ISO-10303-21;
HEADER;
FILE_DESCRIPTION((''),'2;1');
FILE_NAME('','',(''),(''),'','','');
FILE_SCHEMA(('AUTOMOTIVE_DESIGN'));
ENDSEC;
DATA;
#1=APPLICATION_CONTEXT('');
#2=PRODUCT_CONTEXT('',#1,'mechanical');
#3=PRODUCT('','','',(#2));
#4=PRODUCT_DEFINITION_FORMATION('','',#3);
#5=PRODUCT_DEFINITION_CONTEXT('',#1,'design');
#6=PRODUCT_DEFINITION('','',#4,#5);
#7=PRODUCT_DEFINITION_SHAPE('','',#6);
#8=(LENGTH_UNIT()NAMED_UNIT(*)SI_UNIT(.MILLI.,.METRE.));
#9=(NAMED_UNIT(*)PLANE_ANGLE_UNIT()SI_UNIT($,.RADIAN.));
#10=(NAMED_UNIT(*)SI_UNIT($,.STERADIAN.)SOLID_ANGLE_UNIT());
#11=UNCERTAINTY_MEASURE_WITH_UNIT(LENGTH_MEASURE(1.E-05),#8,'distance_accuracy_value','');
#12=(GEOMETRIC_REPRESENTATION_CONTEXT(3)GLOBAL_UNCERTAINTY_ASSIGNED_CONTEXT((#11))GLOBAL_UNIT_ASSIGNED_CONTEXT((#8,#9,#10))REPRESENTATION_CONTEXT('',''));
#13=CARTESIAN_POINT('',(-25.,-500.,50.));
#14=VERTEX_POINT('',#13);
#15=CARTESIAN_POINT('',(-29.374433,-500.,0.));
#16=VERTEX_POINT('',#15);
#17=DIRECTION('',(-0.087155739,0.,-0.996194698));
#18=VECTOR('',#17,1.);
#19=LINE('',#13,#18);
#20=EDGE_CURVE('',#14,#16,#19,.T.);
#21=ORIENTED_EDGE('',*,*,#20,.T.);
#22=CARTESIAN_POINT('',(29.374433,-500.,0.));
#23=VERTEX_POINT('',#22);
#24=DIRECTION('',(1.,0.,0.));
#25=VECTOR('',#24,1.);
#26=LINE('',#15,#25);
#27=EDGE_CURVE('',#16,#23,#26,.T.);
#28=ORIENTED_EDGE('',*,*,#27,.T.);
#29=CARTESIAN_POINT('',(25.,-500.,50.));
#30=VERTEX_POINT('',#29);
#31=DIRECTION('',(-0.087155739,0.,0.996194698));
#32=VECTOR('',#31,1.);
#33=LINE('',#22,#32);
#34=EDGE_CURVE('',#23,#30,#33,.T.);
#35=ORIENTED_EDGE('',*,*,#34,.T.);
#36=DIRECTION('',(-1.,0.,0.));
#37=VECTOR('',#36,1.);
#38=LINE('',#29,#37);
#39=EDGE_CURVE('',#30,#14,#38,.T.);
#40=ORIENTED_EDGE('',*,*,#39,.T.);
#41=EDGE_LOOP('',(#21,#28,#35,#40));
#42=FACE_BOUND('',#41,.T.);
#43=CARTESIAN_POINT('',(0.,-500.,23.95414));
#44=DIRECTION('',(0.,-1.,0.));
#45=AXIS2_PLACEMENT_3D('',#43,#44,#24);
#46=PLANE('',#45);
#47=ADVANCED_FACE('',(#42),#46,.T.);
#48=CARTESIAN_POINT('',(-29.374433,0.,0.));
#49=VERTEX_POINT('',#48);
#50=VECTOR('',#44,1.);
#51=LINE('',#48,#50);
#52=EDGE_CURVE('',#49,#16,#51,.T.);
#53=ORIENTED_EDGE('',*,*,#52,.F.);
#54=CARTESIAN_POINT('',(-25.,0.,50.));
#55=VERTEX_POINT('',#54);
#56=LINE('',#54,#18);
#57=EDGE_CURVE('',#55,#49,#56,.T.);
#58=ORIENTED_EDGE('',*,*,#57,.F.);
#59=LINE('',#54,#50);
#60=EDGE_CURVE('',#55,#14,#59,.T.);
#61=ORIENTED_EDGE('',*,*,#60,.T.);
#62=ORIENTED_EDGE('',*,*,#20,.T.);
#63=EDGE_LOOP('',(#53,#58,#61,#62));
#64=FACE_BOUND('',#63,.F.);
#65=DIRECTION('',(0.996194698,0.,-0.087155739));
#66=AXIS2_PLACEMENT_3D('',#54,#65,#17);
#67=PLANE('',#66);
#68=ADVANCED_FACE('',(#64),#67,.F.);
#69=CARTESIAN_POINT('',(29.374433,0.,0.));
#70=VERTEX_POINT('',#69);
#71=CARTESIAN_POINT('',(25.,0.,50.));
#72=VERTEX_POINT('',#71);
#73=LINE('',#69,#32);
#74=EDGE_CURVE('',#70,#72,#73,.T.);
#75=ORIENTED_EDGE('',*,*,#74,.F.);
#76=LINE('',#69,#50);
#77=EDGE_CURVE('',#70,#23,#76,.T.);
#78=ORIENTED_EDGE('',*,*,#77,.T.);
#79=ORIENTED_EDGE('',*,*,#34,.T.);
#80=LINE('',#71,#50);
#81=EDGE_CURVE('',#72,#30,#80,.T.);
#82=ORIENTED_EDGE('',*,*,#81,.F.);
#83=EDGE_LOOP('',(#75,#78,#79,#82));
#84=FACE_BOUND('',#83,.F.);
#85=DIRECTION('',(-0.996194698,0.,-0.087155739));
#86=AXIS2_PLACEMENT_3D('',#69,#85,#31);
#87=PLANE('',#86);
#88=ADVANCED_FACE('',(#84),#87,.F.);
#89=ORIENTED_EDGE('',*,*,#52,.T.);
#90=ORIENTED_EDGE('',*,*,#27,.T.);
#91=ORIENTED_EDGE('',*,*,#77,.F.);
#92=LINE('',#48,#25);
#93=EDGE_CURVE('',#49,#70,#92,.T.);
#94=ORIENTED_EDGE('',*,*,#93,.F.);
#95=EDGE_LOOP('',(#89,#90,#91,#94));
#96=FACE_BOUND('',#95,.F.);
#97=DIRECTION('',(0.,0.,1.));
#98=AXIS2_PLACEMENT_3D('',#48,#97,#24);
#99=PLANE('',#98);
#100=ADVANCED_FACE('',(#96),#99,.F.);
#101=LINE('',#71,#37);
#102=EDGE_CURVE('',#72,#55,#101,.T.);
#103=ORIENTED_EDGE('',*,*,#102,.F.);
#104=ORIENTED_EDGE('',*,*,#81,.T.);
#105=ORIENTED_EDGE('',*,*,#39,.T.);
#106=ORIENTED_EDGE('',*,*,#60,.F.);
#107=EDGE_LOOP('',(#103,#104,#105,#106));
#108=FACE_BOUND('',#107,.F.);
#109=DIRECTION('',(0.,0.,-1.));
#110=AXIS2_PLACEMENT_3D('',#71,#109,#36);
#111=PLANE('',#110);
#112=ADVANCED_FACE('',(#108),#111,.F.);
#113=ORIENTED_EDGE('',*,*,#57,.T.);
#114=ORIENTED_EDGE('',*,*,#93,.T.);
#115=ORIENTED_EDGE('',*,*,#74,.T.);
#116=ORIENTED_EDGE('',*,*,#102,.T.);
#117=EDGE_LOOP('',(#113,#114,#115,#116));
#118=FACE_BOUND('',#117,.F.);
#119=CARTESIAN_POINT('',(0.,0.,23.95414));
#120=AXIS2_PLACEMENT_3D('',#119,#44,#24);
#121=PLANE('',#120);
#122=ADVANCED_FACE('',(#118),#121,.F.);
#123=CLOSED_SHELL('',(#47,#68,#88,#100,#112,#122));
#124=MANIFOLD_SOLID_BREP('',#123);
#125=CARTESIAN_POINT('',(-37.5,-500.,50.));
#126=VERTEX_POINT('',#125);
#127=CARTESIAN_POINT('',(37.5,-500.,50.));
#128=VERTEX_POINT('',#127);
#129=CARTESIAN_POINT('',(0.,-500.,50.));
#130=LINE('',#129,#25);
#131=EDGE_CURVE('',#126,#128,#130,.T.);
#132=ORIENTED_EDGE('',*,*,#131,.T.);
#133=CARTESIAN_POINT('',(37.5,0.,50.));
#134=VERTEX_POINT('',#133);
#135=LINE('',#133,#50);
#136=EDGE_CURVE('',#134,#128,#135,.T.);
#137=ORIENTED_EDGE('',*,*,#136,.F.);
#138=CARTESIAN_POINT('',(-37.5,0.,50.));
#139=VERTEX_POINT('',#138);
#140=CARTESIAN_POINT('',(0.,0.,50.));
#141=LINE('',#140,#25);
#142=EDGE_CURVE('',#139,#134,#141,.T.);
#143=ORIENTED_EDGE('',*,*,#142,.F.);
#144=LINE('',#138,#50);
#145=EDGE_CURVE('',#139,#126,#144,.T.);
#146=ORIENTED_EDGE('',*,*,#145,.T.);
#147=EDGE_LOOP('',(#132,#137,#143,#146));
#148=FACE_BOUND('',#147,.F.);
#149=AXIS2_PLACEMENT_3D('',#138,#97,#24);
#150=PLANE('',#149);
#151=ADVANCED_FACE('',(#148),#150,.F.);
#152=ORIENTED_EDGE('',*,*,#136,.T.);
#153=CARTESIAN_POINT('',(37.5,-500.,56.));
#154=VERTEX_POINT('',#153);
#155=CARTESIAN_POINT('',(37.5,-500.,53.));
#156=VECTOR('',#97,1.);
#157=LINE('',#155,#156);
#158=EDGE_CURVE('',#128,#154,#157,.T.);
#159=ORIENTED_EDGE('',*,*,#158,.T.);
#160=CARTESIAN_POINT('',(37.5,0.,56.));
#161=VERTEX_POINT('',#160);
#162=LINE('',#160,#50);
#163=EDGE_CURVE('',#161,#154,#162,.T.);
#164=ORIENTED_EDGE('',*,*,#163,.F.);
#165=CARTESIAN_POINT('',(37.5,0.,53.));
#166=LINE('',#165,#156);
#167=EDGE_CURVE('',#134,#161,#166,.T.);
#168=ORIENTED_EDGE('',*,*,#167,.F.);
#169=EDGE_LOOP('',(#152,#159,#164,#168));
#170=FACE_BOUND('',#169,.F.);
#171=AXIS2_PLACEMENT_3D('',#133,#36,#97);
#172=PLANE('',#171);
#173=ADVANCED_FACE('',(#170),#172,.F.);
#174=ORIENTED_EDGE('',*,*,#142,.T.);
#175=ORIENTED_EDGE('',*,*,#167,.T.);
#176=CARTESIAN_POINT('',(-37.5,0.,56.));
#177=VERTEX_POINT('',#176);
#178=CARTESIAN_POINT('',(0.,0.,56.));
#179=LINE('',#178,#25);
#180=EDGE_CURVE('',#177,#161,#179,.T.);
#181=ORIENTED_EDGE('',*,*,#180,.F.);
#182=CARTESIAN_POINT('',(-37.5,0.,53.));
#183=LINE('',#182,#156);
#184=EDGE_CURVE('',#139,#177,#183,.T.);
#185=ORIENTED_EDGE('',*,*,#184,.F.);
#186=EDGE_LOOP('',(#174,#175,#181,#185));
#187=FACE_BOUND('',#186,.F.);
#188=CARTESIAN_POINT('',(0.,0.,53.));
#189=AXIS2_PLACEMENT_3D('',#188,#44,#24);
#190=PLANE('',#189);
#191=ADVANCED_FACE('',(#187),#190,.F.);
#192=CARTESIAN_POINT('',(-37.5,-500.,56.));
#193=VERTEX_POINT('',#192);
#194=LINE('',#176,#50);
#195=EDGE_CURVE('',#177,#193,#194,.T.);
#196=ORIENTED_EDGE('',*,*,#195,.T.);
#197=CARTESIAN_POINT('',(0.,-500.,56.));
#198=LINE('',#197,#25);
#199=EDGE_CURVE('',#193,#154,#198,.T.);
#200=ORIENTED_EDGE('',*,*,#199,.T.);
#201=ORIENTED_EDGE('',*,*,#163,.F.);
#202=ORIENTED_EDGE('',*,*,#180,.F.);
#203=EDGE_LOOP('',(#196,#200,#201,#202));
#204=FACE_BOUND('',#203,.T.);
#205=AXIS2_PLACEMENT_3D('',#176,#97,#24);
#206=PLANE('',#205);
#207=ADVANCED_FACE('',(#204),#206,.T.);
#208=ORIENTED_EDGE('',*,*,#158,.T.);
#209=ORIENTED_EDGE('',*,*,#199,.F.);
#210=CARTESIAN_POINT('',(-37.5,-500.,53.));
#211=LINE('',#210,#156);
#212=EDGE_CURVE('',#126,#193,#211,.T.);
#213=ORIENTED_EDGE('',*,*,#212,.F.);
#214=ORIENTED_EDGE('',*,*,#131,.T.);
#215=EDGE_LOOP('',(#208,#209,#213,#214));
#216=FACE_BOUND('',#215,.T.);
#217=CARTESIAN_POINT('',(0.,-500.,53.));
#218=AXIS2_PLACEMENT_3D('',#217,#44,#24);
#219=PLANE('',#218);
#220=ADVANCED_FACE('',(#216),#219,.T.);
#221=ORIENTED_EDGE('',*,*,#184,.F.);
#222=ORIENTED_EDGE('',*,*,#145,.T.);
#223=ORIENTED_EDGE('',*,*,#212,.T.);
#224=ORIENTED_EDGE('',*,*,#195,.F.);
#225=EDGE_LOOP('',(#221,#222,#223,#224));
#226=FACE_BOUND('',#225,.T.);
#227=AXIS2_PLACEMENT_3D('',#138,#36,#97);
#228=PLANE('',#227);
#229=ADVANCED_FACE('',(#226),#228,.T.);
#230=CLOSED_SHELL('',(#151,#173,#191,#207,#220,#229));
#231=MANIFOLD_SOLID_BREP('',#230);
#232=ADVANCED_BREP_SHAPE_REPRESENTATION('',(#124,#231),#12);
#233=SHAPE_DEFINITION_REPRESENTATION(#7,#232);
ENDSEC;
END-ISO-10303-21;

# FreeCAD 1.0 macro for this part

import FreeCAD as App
import Part
import Sketcher
from FreeCAD import Vector
Q = App.Units.Quantity

doc = App.newDocument("Part")
body = doc.addObject("PartDesign::Body", "Body")

# Sketch on XZ plane
sketch1 = body.newObject("Sketcher::SketchObject", "Sketch")
sketch1.AttachmentSupport = (doc.getObject("XZ_Plane"), [""])
sketch1.MapMode = "FlatFace"
sketch1.addGeometry([
    Part.LineSegment(Vector(-25, 50, 0), Vector(-29, 0, 0)),
    Part.LineSegment(Vector(-29, 0, 0), Vector(29, 0, 0)),
    Part.LineSegment(Vector(29, 0, 0), Vector(25, 50, 0)),
    Part.LineSegment(Vector(25, 50, 0), Vector(-25, 50, 0)),
], False)
sketch1.addConstraint([
    Sketcher.Constraint("Coincident", 0, 2, 1, 1),
    Sketcher.Constraint("Coincident", 1, 2, 2, 1),
    Sketcher.Constraint("Coincident", 2, 2, 3, 1),
    Sketcher.Constraint("Coincident", 3, 2, 0, 1),
    Sketcher.Constraint("Horizontal", 1),
    Sketcher.Constraint("Horizontal", 3),
    Sketcher.Constraint("Symmetric", 0, 2, 1, 2, -1, 1),
    Sketcher.Constraint("Equal", 0, 2),
    Sketcher.Constraint("DistanceX", 3, 2, 3, 1, Q("50 mm")),
    Sketcher.Constraint("Angle", 0, Q("-95 deg")),
    Sketcher.Constraint("DistanceY", -1, 1, 2, 2, Q("50 mm")),
])
pad1 = body.newObject("PartDesign::Pad", "Pad")
pad1.Profile = sketch1
pad1.Length = 500
body2 = doc.addObject("PartDesign::Body", "Body001")

# Sketch on XZ plane
sketch2 = body2.newObject("Sketcher::SketchObject", "Sketch001")
sketch2.AttachmentSupport = (doc.getObject("XZ_Plane001"), [""])
sketch2.MapMode = "FlatFace"
sketch2.addGeometry([
    Part.LineSegment(Vector(-38, 56, 0), Vector(-38, 50, 0)),
    Part.LineSegment(Vector(-38, 50, 0), Vector(38, 50, 0)),
    Part.LineSegment(Vector(38, 50, 0), Vector(38, 56, 0)),
    Part.LineSegment(Vector(38, 56, 0), Vector(-38, 56, 0)),
], False)
sketch2.addConstraint([
    Sketcher.Constraint("Coincident", 0, 2, 1, 1),
    Sketcher.Constraint("Coincident", 1, 2, 2, 1),
    Sketcher.Constraint("Coincident", 2, 2, 3, 1),
    Sketcher.Constraint("Coincident", 3, 2, 0, 1),
    Sketcher.Constraint("Vertical", 0),
    Sketcher.Constraint("Horizontal", 1),
    Sketcher.Constraint("Vertical", 2),
    Sketcher.Constraint("Horizontal", 3),
    Sketcher.Constraint("DistanceX", 1, 1, 1, 2, Q("75 mm")),
    Sketcher.Constraint("DistanceY", 0, 2, 0, 1, Q("6 mm")),
    Sketcher.Constraint("DistanceY", -1, 1, 0, 2, Q("50 mm")),
    Sketcher.Constraint("DistanceX", 0, 2, -1, 1, Q("37.5 mm")),
])
pad2 = body2.newObject("PartDesign::Pad", "Pad001")
pad2.Profile = sketch2
pad2.Length = 500

doc.recompute()
